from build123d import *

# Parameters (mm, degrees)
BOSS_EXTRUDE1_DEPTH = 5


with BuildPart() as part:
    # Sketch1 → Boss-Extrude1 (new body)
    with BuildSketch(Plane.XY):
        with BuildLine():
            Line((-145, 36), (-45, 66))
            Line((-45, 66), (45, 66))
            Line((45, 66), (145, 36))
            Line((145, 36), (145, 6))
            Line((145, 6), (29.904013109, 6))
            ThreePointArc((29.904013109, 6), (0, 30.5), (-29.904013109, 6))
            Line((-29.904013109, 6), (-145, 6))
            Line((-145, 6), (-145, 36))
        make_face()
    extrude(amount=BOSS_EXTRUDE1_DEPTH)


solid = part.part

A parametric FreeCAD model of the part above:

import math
import FreeCAD as App
import Part
import Sketcher
from FreeCAD import Vector

doc = App.newDocument("Part")
params = doc.addObject("Spreadsheet::Sheet", "Params")
for row, (alias, value) in enumerate([
    ("sketch1_radius", "30.5 mm"),
    ("sketch1_width", "90 mm"),
    ("sketch1_height", "30 mm"),
    ("pad1_length", "5 mm"),
], start=1):
    params.set(f"A{row}", alias)
    params.set(f"B{row}", "=" + value)
    params.setAlias(f"B{row}", alias)

body = doc.addObject("PartDesign::Body", "Body")

# Sketch on XY plane
sketch1 = body.newObject("Sketcher::SketchObject", "Sketch")
sketch1.AttachmentSupport = (doc.getObject("XY_Plane"), [""])
sketch1.MapMode = "FlatFace"
sketch1.addGeometry(Part.LineSegment(Vector(-45, 66, 0), Vector(-145, 36, 0)), False)
sketch1.addGeometry(Part.LineSegment(Vector(-145, 36, 0), Vector(-145, 6, 0)), False)
sketch1.addGeometry(Part.LineSegment(Vector(-145, 6, 0), Vector(-29.904013, 6, 0)), False)
sketch1.addGeometry(Part.ArcOfCircle(Part.Circle(Vector(0, 0, 0), Vector(0, 0, 1), 30.5), math.radians(11.345295), math.radians(168.654705)), False)
sketch1.addGeometry(Part.LineSegment(Vector(29.904013, 6, 0), Vector(145, 6, 0)), False)
sketch1.addGeometry(Part.LineSegment(Vector(145, 6, 0), Vector(145, 36, 0)), False)
sketch1.addGeometry(Part.LineSegment(Vector(145, 36, 0), Vector(45, 66, 0)), False)
sketch1.addGeometry(Part.LineSegment(Vector(45, 66, 0), Vector(-45, 66, 0)), False)
sketch1.addConstraint(Sketcher.Constraint("Coincident", 0, 2, 1, 1))
sketch1.addConstraint(Sketcher.Constraint("Coincident", 1, 2, 2, 1))
sketch1.addConstraint(Sketcher.Constraint("Coincident", 2, 2, 3, 2))
sketch1.addConstraint(Sketcher.Constraint("Coincident", 3, 1, 4, 1))
sketch1.addConstraint(Sketcher.Constraint("Coincident", 4, 2, 5, 1))
sketch1.addConstraint(Sketcher.Constraint("Coincident", 5, 2, 6, 1))
sketch1.addConstraint(Sketcher.Constraint("Coincident", 6, 2, 7, 1))
sketch1.addConstraint(Sketcher.Constraint("Coincident", 7, 2, 0, 1))
sketch1.addConstraint(Sketcher.Constraint("Vertical", 1))
sketch1.addConstraint(Sketcher.Constraint("Horizontal", 2))
sketch1.addConstraint(Sketcher.Constraint("Horizontal", 4))
sketch1.addConstraint(Sketcher.Constraint("Vertical", 5))
sketch1.addConstraint(Sketcher.Constraint("Horizontal", 7))
sketch1.addConstraint(Sketcher.Constraint("Coincident", 3, 3, -1, 1))
sketch1.addConstraint(Sketcher.Constraint("Symmetric", 1, 2, 4, 2, -2))
sketch1.addConstraint(Sketcher.Constraint("Horizontal", 0, 2, 5, 2))
sketch1.addConstraint(Sketcher.Constraint("Equal", 0, 6))
sketch1.addConstraint(Sketcher.Constraint("Radius", 3, 30.5))
sketch1.addConstraint(Sketcher.Constraint("DistanceX", 7, 2, 7, 1, 90.0))
sketch1.addConstraint(Sketcher.Constraint("DistanceY", 1, 2, 1, 1, 30.0))
sketch1.addConstraint(Sketcher.Constraint("DistanceX", 0, 2, -1, 1, 145.0))
sketch1.addConstraint(Sketcher.Constraint("DistanceY", -1, 1, 0, 2, 36.0))
sketch1.addConstraint(Sketcher.Constraint("DistanceY", -1, 1, 6, 2, 66.0))
sketch1.setExpression("Constraints[17]", "Params.sketch1_radius")
sketch1.setExpression("Constraints[18]", "Params.sketch1_width")
sketch1.setExpression("Constraints[19]", "Params.sketch1_height")
pad1 = body.newObject("PartDesign::Pad", "Pad")
pad1.Profile = sketch1
pad1.setExpression("Length", "Params.pad1_length")

doc.recompute()
